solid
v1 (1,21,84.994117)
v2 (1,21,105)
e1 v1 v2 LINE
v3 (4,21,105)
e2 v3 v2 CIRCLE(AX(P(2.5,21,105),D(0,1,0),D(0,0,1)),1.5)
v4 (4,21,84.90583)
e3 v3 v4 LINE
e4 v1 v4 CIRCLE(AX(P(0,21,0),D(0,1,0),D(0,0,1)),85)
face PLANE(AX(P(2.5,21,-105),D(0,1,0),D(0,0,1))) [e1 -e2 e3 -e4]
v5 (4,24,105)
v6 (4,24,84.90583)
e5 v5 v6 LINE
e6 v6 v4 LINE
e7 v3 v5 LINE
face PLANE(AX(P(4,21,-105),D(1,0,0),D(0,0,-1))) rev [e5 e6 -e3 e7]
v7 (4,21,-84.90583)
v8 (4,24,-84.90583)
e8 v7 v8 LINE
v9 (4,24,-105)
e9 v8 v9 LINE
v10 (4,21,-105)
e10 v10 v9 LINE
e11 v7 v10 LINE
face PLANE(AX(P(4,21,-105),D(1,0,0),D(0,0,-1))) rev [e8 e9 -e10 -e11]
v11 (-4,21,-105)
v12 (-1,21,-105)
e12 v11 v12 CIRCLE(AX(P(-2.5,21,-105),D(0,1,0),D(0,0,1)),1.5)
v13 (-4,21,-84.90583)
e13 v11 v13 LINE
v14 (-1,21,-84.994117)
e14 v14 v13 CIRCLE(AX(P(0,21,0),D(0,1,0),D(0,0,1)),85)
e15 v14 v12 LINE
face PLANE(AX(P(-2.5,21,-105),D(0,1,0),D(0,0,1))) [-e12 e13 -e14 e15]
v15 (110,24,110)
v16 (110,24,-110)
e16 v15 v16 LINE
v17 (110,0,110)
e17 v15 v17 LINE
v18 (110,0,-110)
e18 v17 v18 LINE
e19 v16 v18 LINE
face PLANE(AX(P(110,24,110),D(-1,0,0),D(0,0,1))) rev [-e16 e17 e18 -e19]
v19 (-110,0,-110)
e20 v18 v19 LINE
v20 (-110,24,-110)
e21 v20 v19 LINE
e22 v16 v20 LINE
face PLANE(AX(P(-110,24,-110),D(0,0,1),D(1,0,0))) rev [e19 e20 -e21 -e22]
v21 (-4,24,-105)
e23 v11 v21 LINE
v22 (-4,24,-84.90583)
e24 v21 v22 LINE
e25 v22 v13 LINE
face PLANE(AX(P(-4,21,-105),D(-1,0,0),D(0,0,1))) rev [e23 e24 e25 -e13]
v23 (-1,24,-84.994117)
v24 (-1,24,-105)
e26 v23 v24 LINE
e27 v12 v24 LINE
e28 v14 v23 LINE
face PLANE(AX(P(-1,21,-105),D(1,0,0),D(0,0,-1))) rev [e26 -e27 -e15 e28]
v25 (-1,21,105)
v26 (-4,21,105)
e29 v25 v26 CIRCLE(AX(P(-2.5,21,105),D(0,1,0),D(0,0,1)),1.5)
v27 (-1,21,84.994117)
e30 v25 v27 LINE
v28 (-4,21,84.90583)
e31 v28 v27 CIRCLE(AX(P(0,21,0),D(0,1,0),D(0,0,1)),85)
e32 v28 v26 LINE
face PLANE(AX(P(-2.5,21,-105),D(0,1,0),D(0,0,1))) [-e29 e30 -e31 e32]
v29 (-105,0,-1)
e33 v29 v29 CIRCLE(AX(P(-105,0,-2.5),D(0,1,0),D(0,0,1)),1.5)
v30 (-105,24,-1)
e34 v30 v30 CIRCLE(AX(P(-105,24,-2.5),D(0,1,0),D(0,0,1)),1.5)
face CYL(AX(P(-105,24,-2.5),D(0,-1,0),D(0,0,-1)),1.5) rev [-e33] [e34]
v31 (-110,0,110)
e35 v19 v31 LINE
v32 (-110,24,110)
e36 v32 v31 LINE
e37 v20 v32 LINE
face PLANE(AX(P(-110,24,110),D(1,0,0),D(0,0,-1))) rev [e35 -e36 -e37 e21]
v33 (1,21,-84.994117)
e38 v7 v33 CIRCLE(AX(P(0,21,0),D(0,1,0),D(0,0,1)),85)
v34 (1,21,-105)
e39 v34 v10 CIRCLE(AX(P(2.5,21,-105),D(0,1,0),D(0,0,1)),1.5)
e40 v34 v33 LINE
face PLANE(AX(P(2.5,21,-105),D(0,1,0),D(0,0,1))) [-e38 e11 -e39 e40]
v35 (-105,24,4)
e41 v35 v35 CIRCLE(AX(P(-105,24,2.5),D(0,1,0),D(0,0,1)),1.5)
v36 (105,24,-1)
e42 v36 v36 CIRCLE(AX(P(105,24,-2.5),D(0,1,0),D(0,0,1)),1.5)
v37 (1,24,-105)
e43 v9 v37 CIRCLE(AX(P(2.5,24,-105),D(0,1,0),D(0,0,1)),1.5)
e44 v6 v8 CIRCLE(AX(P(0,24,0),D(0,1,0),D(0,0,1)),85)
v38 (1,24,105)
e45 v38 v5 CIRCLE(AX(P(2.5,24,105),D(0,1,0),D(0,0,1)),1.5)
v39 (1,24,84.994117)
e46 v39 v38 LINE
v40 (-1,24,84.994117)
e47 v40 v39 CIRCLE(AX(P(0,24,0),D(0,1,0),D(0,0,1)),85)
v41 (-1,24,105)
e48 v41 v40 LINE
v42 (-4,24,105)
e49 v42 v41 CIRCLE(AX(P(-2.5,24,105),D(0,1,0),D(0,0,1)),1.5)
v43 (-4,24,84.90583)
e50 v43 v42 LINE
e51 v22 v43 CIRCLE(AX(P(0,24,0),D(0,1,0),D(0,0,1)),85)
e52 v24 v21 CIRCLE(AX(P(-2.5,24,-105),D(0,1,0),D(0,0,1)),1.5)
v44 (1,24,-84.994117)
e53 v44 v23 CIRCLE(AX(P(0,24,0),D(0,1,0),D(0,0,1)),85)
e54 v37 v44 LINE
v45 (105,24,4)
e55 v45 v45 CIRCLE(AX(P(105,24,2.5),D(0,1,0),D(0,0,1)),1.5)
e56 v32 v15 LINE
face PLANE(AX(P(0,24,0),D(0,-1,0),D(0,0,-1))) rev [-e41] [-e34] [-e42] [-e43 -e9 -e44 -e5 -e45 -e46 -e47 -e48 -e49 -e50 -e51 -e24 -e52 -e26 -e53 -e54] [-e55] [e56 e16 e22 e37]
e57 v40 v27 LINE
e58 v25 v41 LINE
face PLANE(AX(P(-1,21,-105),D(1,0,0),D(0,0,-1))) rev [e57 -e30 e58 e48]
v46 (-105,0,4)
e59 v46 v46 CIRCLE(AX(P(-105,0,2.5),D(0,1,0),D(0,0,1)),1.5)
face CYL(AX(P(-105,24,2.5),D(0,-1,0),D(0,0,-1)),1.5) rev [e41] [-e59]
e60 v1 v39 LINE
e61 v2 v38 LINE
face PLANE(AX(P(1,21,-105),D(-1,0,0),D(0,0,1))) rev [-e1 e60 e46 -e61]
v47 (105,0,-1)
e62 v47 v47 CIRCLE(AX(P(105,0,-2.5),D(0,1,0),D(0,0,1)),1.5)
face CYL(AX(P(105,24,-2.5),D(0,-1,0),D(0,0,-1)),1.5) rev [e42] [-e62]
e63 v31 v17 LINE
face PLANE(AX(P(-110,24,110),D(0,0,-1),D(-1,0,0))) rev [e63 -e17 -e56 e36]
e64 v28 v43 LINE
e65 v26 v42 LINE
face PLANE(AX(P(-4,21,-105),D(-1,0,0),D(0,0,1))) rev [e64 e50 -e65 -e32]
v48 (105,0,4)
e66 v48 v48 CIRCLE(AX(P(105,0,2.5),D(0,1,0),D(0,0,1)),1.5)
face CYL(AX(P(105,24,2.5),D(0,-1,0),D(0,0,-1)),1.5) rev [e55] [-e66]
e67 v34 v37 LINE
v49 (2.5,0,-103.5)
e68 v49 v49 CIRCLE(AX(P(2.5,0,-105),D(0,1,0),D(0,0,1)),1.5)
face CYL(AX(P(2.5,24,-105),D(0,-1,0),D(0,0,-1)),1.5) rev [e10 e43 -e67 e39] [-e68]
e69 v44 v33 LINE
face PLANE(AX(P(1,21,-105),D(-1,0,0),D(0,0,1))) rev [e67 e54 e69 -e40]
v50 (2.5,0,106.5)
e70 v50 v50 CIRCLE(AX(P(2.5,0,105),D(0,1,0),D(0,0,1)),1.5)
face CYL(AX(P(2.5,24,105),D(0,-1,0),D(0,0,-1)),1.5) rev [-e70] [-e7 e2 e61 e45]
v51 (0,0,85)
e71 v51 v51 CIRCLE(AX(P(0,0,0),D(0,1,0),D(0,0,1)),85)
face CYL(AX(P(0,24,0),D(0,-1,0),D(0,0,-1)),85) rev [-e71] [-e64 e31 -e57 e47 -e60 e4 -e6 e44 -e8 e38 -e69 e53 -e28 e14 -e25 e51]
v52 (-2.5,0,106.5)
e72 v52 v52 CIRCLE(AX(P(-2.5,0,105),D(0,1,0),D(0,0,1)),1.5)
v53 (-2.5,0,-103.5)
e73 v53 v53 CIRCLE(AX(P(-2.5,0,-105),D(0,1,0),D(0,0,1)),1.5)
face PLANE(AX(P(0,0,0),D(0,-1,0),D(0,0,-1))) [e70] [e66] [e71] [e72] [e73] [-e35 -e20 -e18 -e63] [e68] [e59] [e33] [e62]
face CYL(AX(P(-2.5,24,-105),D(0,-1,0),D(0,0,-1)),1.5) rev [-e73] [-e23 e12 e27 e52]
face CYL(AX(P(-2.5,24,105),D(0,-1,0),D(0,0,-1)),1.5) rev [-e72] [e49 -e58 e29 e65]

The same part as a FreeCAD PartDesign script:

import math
import FreeCAD as App
import Part
import Sketcher
Q = App.Units.Quantity

doc = App.newDocument("Part")
params = doc.addObject("Spreadsheet::Sheet", "Params")
for row, (alias, value) in enumerate([
    ("sketch1_diameter", "3 mm"),
    ("sketch1_diameter2", "170 mm"),
    ("sketch1_width", "220 mm"),
    ("pad1_length", "24 mm"),
    ("sketch2_radius", "1.5 mm"),
    ("sketch2_height", "210 mm"),
    ("pocket1_length", "3 mm"),
], start=1):
    params.set(f"A{row}", alias)
    params.set(f"B{row}", "=" + value)
    params.setAlias(f"B{row}", alias)

body = doc.addObject("PartDesign::Body", "Body")

sketch1 = doc.addObject("Sketcher::SketchObject", "Sketch")
body.addObject(sketch1)
sketch1.AttachmentSupport = (doc.XZ_Plane, [""])
sketch1.MapMode = "FlatFace"
sketch1.addGeometry([
    Part.LineSegment(App.Vector(-110, -110, 0), App.Vector(-110, 110, 0)),
    Part.LineSegment(App.Vector(-110, 110, 0), App.Vector(110, 110, 0)),
    Part.LineSegment(App.Vector(110, 110, 0), App.Vector(110, -110, 0)),
    Part.LineSegment(App.Vector(110, -110, 0), App.Vector(-110, -110, 0)),
    Part.Circle(App.Vector(-2.5, 105, 0), App.Vector(0, 0, 1), 1.5),
    Part.Circle(App.Vector(-105, 2.5, 0), App.Vector(0, 0, 1), 1.5),
    Part.Circle(App.Vector(2.5, 105, 0), App.Vector(0, 0, 1), 1.5),
    Part.Circle(App.Vector(105, 2.5, 0), App.Vector(0, 0, 1), 1.5),
    Part.Circle(App.Vector(-105, -2.5, 0), App.Vector(0, 0, 1), 1.5),
    Part.Circle(App.Vector(-2.5, -105, 0), App.Vector(0, 0, 1), 1.5),
    Part.Circle(App.Vector(0, 0, 0), App.Vector(0, 0, 1), 85),
    Part.Circle(App.Vector(105, -2.5, 0), App.Vector(0, 0, 1), 1.5),
    Part.Circle(App.Vector(2.5, -105, 0), App.Vector(0, 0, 1), 1.5),
], False)
sketch1.addConstraint([
    Sketcher.Constraint("Coincident", 0, 2, 1, 1),
    Sketcher.Constraint("Coincident", 1, 2, 2, 1),
    Sketcher.Constraint("Coincident", 2, 2, 3, 1),
    Sketcher.Constraint("Coincident", 3, 2, 0, 1),
    Sketcher.Constraint("Vertical", 0),
    Sketcher.Constraint("Horizontal", 1),
    Sketcher.Constraint("Vertical", 2),
    Sketcher.Constraint("Horizontal", 3),
    Sketcher.Constraint("Coincident", 10, 3, -1, 1),
    Sketcher.Constraint("Equal", 4, 5),
    Sketcher.Constraint("Equal", 5, 6),
    Sketcher.Constraint("Equal", 6, 7),
    Sketcher.Constraint("Equal", 7, 8),
    Sketcher.Constraint("Equal", 8, 9),
    Sketcher.Constraint("Equal", 9, 11),
    Sketcher.Constraint("Equal", 11, 12),
    Sketcher.Constraint("Symmetric", 7, 3, 8, 3, -1, 1),
    Sketcher.Constraint("Symmetric", 6, 3, 9, 3, -1, 1),
    Sketcher.Constraint("Symmetric", 5, 3, 11, 3, -1, 1),
    Sketcher.Constraint("Symmetric", 4, 3, 12, 3, -1, 1),
    Sketcher.Constraint("Symmetric", 0, 2, 2, 2, -1, 1),
    Sketcher.Constraint("Symmetric", 4, 3, 6, 3, -2),
    Sketcher.Constraint("Symmetric", 5, 3, 7, 3, -2),
    Sketcher.Constraint("Equal", 3, 0),
    Sketcher.Constraint("Diameter", 4, Q("3 mm")),
    Sketcher.Constraint("Diameter", 10, Q("170 mm")),
    Sketcher.Constraint("DistanceX", 1, 1, 1, 2, Q("220 mm")),
    Sketcher.Constraint("DistanceY", -1, 1, 4, 3, Q("105 mm")),
    Sketcher.Constraint("DistanceX", 5, 3, -1, 1, Q("105 mm")),
    Sketcher.Constraint("DistanceX", 4, 3, 6, 3, Q("5 mm")),
    Sketcher.Constraint("DistanceY", 8, 3, 5, 3, Q("5 mm")),
])
sketch1.setExpression("Constraints[24]", "Params.sketch1_diameter")
sketch1.setExpression("Constraints[25]", "Params.sketch1_diameter2")
sketch1.setExpression("Constraints[26]", "Params.sketch1_width")
pad1 = doc.addObject("PartDesign::Pad", "Pad")
body.addObject(pad1)
pad1.Profile = sketch1
pad1.setExpression("Length", "Params.pad1_length")
pad1.Reversed = True

sketch2 = doc.addObject("Sketcher::SketchObject", "Sketch001")
body.addObject(sketch2)
sketch2.AttachmentSupport = (doc.XZ_Plane, [""])
sketch2.MapMode = "FlatFace"
sketch2.AttachmentOffset = App.Placement(App.Vector(0, 0, -21), App.Rotation())
sketch2.addGeometry([
    Part.LineSegment(App.Vector(4, 105, 0), App.Vector(4, -105, 0)),
    Part.ArcOfCircle(Part.Circle(App.Vector(2.5, -105, 0), App.Vector(0, 0, 1), 1.5), math.radians(180), math.radians(360)),
    Part.LineSegment(App.Vector(1, -105, 0), App.Vector(1, 105, 0)),
    Part.ArcOfCircle(Part.Circle(App.Vector(2.5, 105, 0), App.Vector(0, 0, 1), 1.5), math.radians(0), math.radians(180)),
    Part.LineSegment(App.Vector(-1, 105, 0), App.Vector(-1, -105, 0)),
    Part.ArcOfCircle(Part.Circle(App.Vector(-2.5, -105, 0), App.Vector(0, 0, 1), 1.5), math.radians(180), math.radians(360)),
    Part.LineSegment(App.Vector(-4, -105, 0), App.Vector(-4, 105, 0)),
    Part.ArcOfCircle(Part.Circle(App.Vector(-2.5, 105, 0), App.Vector(0, 0, 1), 1.5), math.radians(0), math.radians(180)),
], False)
sketch2.addConstraint([
    Sketcher.Constraint("Tangent", 0, 2, 1, 2),
    Sketcher.Constraint("Tangent", 1, 1, 2, 1),
    Sketcher.Constraint("Tangent", 2, 2, 3, 2),
    Sketcher.Constraint("Tangent", 3, 1, 0, 1),
    Sketcher.Constraint("Tangent", 4, 2, 5, 2),
    Sketcher.Constraint("Tangent", 5, 1, 6, 1),
    Sketcher.Constraint("Tangent", 6, 2, 7, 2),
    Sketcher.Constraint("Tangent", 7, 1, 4, 1),
    Sketcher.Constraint("Vertical", 0),
    Sketcher.Constraint("Vertical", 2),
    Sketcher.Constraint("Vertical", 4),
    Sketcher.Constraint("Vertical", 6),
    Sketcher.Constraint("Equal", 3, 5),
    Sketcher.Constraint("Symmetric", 3, 3, 5, 3, -1, 1),
    Sketcher.Constraint("Horizontal", 1, 3, 5, 3),
    Sketcher.Constraint("Horizontal", 3, 3, 7, 3),
    Sketcher.Constraint("Radius", 1, Q("1.5 mm")),
    Sketcher.Constraint("DistanceY", 0, 2, 0, 1, Q("210 mm")),
    Sketcher.Constraint("DistanceX", -1, 1, 0, 2, Q("4 mm")),
])
sketch2.setExpression("Constraints[16]", "Params.sketch2_radius")
sketch2.setExpression("Constraints[17]", "Params.sketch2_height")
pocket1 = doc.addObject("PartDesign::Pocket", "Pocket")
body.addObject(pocket1)
pocket1.Profile = sketch2
pocket1.setExpression("Length", "Params.pocket1_length")

doc.recompute()
